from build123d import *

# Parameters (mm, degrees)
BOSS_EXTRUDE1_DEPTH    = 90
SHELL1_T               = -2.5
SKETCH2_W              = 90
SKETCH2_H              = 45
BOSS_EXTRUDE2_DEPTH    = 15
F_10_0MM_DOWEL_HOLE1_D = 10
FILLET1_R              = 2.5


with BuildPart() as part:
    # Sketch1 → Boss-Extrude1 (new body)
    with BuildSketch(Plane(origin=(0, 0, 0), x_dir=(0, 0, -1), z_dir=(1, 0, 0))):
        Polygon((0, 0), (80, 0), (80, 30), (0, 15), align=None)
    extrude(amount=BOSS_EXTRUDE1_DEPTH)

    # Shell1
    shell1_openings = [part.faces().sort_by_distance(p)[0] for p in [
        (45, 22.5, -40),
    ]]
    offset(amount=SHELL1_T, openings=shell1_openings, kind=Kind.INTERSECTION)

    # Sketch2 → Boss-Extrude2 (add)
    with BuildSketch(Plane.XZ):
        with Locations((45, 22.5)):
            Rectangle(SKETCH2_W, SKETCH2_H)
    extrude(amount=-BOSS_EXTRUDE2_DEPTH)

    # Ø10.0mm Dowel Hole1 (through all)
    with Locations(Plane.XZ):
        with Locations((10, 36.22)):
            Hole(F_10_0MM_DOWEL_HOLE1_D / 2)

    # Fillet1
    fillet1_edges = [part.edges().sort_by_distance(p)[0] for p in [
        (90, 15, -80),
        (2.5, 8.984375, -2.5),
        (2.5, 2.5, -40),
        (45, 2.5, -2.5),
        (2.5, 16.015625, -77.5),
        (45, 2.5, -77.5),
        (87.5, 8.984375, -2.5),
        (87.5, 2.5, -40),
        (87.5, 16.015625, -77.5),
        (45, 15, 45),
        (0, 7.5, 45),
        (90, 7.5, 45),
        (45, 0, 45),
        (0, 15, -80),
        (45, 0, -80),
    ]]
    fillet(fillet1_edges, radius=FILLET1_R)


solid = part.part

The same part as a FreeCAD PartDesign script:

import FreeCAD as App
import Part
import Sketcher

V = App.Vector
Q = App.Units.Quantity


def edges_at(feature, points):
    """Names of the edges that pass closest to the given points."""
    edges = feature.Shape.Edges
    near = lambda p: min(range(len(edges)), key=lambda i: edges[i].distToShape(Part.Vertex(*p))[0])
    return sorted({f"Edge{near(p) + 1}" for p in points})


def faces_at(feature, points):
    """Names of the faces that lie closest to the given points."""
    faces = feature.Shape.Faces
    near = lambda p: min(range(len(faces)), key=lambda i: faces[i].distToShape(Part.Vertex(*p))[0])
    return sorted({f"Face{near(p) + 1}" for p in points})

doc = App.newDocument("Part")
body = doc.addObject("PartDesign::Body", "Body")

# Sketch on YZ plane
sketch1 = body.newObject("Sketcher::SketchObject", "Sketch")
sketch1.AttachmentSupport = (doc.getObject("YZ_Plane"), [""])
sketch1.MapMode = "FlatFace"
sketch1.addGeometry(Part.LineSegment(V(0, 0, 0), V(0, -80, 0)), False)
sketch1.addGeometry(Part.LineSegment(V(0, -80, 0), V(30, -80, 0)), False)
sketch1.addGeometry(Part.LineSegment(V(30, -80, 0), V(15, 0, 0)), False)
sketch1.addGeometry(Part.LineSegment(V(15, 0, 0), V(0, 0, 0)), False)
sketch1.addConstraint(Sketcher.Constraint("Coincident", 0, 2, 1, 1))
sketch1.addConstraint(Sketcher.Constraint("Coincident", 1, 2, 2, 1))
sketch1.addConstraint(Sketcher.Constraint("Coincident", 2, 2, 3, 1))
sketch1.addConstraint(Sketcher.Constraint("Coincident", 3, 2, 0, 1))
sketch1.addConstraint(Sketcher.Constraint("Vertical", 0))
sketch1.addConstraint(Sketcher.Constraint("Horizontal", 1))
sketch1.addConstraint(Sketcher.Constraint("Horizontal", 3))
sketch1.addConstraint(Sketcher.Constraint("Coincident", 3, 2, -1, 1))
sketch1.addConstraint(Sketcher.Constraint("DistanceX", 1, 1, 1, 2, Q("30 mm")))
sketch1.addConstraint(Sketcher.Constraint("DistanceX", 3, 2, 3, 1, Q("15 mm")))
sketch1.addConstraint(Sketcher.Constraint("DistanceY", 0, 2, 0, 1, Q("80 mm")))
pad1 = body.newObject("PartDesign::Pad", "Pad")
pad1.Profile = sketch1
pad1.Length = 90
doc.recompute()

thickness = body.newObject("PartDesign::Thickness", "Thickness")
thickness.Base = (pad1, faces_at(pad1, [(45, 22.5, -40)]))
thickness.Value = 2.5
thickness.Reversed = True
thickness.Join = "Intersection"

# Sketch on XZ plane
sketch2 = body.newObject("Sketcher::SketchObject", "Sketch001")
sketch2.AttachmentSupport = (doc.getObject("XZ_Plane"), [""])
sketch2.MapMode = "FlatFace"
sketch2.addGeometry(Part.LineSegment(V(0, 45, 0), V(0, 0, 0)), False)
sketch2.addGeometry(Part.LineSegment(V(0, 0, 0), V(90, 0, 0)), False)
sketch2.addGeometry(Part.LineSegment(V(90, 0, 0), V(90, 45, 0)), False)
sketch2.addGeometry(Part.LineSegment(V(90, 45, 0), V(0, 45, 0)), False)
sketch2.addConstraint(Sketcher.Constraint("Coincident", 0, 2, 1, 1))
sketch2.addConstraint(Sketcher.Constraint("Coincident", 1, 2, 2, 1))
sketch2.addConstraint(Sketcher.Constraint("Coincident", 2, 2, 3, 1))
sketch2.addConstraint(Sketcher.Constraint("Coincident", 3, 2, 0, 1))
sketch2.addConstraint(Sketcher.Constraint("Vertical", 0))
sketch2.addConstraint(Sketcher.Constraint("Horizontal", 1))
sketch2.addConstraint(Sketcher.Constraint("Vertical", 2))
sketch2.addConstraint(Sketcher.Constraint("Horizontal", 3))
sketch2.addConstraint(Sketcher.Constraint("Coincident", 0, 2, -1, 1))
sketch2.addConstraint(Sketcher.Constraint("DistanceX", 1, 1, 1, 2, Q("90 mm")))
sketch2.addConstraint(Sketcher.Constraint("DistanceY", 0, 2, 0, 1, Q("45 mm")))
pad2 = body.newObject("PartDesign::Pad", "Pad001")
pad2.Profile = sketch2
pad2.Length = 15
pad2.Reversed = True

# Sketch on XZ plane
sketch3 = body.newObject("Sketcher::SketchObject", "Sketch002")
sketch3.AttachmentSupport = (doc.getObject("XZ_Plane"), [""])
sketch3.MapMode = "FlatFace"
sketch3.addGeometry(Part.Circle(V(10, 36.22, 0), V(0, 0, 1), 5), False)
sketch3.addConstraint(Sketcher.Constraint("Diameter", 0, Q("10 mm")))
sketch3.addConstraint(Sketcher.Constraint("DistanceX", -1, 1, 0, 3, Q("10 mm")))
sketch3.addConstraint(Sketcher.Constraint("DistanceY", -1, 1, 0, 3, Q("36.22 mm")))
doc.recompute()
hole = body.newObject("PartDesign::Hole", "Hole")
hole.Profile = sketch3
hole.ThreadType = "None"
hole.Diameter = 10
hole.DepthType = "ThroughAll"
doc.recompute()

fillet = body.newObject("PartDesign::Fillet", "Fillet")
fillet.Base = (hole, edges_at(hole, [
    (90, 15, -80),
    (2.5, 8.984, -2.5),
    (2.5, 2.5, -40),
    (45, 2.5, -2.5),
    (2.5, 16.016, -77.5),
    (45, 2.5, -77.5),
    (87.5, 8.984, -2.5),
    (87.5, 2.5, -40),
    (87.5, 16.016, -77.5),
    (45, 15, 45),
    (0, 7.5, 45),
    (90, 7.5, 45),
    (45, 0, 45),
    (0, 15, -80),
    (45, 0, -80),
]))
fillet.Radius = 2.5

doc.recompute()
